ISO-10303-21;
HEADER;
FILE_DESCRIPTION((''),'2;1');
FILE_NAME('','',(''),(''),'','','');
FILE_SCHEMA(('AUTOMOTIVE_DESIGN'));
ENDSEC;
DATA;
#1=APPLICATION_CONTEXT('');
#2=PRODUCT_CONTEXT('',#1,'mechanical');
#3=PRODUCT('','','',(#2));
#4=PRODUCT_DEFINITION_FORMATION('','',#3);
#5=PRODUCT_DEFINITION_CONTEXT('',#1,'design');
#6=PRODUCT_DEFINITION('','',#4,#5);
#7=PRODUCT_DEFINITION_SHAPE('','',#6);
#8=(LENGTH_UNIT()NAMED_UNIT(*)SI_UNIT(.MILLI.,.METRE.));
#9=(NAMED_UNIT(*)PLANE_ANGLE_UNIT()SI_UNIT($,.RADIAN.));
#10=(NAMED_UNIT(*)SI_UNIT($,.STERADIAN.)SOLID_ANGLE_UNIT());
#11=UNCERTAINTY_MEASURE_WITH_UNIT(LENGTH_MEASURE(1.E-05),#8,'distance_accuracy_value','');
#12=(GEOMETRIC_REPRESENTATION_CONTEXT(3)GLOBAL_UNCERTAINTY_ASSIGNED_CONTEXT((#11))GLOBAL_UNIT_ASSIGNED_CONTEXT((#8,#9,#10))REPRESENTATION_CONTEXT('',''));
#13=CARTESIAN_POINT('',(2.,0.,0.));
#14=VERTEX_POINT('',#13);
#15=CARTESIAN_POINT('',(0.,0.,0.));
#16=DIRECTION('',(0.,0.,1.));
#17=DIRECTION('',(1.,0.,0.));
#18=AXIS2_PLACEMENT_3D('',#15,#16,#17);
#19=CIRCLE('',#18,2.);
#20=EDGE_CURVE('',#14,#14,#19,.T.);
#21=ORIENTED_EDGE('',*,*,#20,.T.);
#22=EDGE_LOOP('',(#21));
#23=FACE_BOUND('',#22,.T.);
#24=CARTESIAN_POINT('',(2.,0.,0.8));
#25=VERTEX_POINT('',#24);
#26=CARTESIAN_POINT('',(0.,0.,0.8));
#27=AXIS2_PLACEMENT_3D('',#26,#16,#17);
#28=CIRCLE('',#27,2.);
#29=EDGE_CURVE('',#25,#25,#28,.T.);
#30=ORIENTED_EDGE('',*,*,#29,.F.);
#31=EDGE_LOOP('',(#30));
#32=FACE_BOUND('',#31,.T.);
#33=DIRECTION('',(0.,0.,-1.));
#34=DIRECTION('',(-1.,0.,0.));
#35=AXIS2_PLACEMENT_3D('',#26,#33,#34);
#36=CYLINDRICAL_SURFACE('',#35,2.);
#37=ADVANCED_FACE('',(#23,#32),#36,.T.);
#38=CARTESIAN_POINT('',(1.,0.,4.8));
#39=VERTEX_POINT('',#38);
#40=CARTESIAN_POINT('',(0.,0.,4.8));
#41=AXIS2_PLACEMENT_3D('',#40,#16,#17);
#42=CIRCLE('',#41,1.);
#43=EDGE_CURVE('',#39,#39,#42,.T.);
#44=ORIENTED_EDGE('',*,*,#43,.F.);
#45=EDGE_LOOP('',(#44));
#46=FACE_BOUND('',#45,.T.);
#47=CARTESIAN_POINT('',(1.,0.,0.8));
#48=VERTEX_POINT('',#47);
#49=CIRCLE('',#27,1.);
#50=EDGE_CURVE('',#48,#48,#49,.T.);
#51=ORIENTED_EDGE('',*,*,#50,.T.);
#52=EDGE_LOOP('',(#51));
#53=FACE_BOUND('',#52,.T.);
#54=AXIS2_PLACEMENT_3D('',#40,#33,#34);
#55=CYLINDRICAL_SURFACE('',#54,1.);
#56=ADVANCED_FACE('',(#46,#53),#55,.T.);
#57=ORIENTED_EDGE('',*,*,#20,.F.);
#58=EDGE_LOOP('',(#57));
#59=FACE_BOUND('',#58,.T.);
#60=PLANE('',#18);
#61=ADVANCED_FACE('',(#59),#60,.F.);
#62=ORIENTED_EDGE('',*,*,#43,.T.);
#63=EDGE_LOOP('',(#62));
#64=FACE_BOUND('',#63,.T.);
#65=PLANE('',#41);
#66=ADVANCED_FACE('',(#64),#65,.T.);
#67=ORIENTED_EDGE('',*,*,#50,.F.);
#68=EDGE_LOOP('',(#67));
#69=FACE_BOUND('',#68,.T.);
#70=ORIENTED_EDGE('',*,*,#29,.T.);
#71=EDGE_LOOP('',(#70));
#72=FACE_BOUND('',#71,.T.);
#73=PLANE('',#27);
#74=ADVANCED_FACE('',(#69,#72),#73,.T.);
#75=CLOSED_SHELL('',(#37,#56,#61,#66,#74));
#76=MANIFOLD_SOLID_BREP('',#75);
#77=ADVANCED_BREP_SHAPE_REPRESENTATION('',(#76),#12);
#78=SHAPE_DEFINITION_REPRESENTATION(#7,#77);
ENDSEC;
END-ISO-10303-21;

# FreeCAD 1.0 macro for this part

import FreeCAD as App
import Part
import Sketcher

V = App.Vector
Q = App.Units.Quantity

doc = App.newDocument("Part")
body = doc.addObject("PartDesign::Body", "Body")

sketch1 = body.newObject("Sketcher::SketchObject", "Sketch")
sketch1.AttachmentSupport = (doc.getObject("XY_Plane"), [""])
sketch1.MapMode = "FlatFace"
sketch1.addGeometry(Part.Circle(V(0, 0, 0), V(0, 0, 1), 2), False)
sketch1.addConstraint([
    Sketcher.Constraint("Coincident", 0, 3, -1, 1),
    Sketcher.Constraint("Diameter", 0, Q("4 mm")),
])
pad1 = body.newObject("PartDesign::Pad", "Pad")
pad1.Profile = sketch1
pad1.Length = 0.8

sketch2 = body.newObject("Sketcher::SketchObject", "Sketch001")
sketch2.AttachmentSupport = (doc.getObject("XY_Plane"), [""])
sketch2.MapMode = "FlatFace"
sketch2.AttachmentOffset = App.Placement(V(0, 0, 0.8), App.Rotation())
sketch2.addGeometry(Part.Circle(V(0, 0, 0), V(0, 0, 1), 1), False)
sketch2.addConstraint([
    Sketcher.Constraint("Coincident", 0, 3, -1, 1),
    Sketcher.Constraint("Diameter", 0, Q("2 mm")),
])
pad2 = body.newObject("PartDesign::Pad", "Pad001")
pad2.Profile = sketch2
pad2.Length = 4

doc.recompute()
